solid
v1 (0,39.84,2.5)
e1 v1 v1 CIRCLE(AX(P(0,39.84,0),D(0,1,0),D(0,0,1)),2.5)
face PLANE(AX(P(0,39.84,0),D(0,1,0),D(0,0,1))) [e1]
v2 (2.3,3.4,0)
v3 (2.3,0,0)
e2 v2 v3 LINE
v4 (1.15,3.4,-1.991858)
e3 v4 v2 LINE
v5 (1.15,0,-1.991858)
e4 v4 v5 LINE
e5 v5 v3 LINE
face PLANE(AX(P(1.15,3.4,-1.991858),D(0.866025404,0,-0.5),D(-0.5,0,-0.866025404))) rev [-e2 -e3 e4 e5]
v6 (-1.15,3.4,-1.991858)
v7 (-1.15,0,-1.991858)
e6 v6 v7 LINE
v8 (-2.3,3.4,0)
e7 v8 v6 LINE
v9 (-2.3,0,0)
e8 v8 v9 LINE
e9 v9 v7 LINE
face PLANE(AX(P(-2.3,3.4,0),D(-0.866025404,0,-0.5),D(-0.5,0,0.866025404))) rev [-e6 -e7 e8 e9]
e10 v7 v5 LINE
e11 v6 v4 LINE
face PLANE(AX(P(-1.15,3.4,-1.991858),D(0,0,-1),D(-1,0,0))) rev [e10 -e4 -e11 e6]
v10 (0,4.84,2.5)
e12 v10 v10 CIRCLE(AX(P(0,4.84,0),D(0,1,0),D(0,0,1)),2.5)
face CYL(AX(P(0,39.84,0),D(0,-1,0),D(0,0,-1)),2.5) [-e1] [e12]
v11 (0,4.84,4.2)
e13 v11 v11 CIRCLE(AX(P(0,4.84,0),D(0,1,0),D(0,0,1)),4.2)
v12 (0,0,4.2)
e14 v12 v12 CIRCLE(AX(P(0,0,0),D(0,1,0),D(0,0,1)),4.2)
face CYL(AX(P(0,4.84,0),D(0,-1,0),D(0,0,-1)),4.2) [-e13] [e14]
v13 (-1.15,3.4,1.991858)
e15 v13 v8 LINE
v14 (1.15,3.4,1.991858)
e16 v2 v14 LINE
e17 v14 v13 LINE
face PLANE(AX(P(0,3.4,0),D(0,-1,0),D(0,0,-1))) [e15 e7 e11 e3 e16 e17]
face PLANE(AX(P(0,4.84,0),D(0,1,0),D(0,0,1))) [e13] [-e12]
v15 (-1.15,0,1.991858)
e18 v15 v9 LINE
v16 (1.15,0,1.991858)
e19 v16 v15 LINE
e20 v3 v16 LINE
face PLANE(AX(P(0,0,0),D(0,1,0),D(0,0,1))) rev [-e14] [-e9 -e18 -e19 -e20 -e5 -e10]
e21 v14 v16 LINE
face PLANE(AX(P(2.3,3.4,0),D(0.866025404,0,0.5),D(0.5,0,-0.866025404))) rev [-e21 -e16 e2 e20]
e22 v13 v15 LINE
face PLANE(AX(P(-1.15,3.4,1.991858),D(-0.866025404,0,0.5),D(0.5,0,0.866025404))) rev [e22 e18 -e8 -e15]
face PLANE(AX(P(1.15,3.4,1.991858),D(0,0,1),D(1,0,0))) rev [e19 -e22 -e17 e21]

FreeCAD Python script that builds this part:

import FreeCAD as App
import Part
import Sketcher
from FreeCAD import Vector
Q = App.Units.Quantity

doc = App.newDocument("Part")
body = doc.addObject("PartDesign::Body", "Body")

# Sketch on XZ plane
sketch1 = body.newObject("Sketcher::SketchObject", "Sketch")
sketch1.AttachmentSupport = (doc.getObject("XZ_Plane"), [""])
sketch1.MapMode = "FlatFace"
sketch1.addGeometry(Part.Circle(Vector(0, 0, 0), Vector(0, 0, 1), 4.2), False)
sketch1.addConstraint([
    Sketcher.Constraint("Coincident", 0, 3, -1, 1),
    Sketcher.Constraint("Diameter", 0, 8.4),
])
pad1 = body.newObject("PartDesign::Pad", "Pad")
pad1.Profile = sketch1
pad1.Length = 4.84
pad1.Reversed = True

# Sketch on XZ plane
sketch2 = body.newObject("Sketcher::SketchObject", "Sketch001")
sketch2.AttachmentSupport = (doc.getObject("XZ_Plane"), [""])
sketch2.MapMode = "FlatFace"
sketch2.AttachmentOffset = App.Placement(Vector(0, 0, -4.84), App.Rotation())
sketch2.addGeometry(Part.Circle(Vector(0, 0, 0), Vector(0, 0, 1), 2.5), False)
sketch2.addConstraint([
    Sketcher.Constraint("Coincident", 0, 3, -1, 1),
    Sketcher.Constraint("Diameter", 0, 5.0),
])
pad2 = body.newObject("PartDesign::Pad", "Pad001")
pad2.Profile = sketch2
pad2.Length = 35
pad2.Reversed = True

# Sketch on XZ plane
sketch3 = body.newObject("Sketcher::SketchObject", "Sketch002")
sketch3.AttachmentSupport = (doc.getObject("XZ_Plane"), [""])
sketch3.MapMode = "FlatFace"
sketch3.addGeometry([
    Part.LineSegment(Vector(2.3, 0, 0), Vector(1.15, 1.991858, 0)),  # 0
    Part.LineSegment(Vector(1.15, 1.991858, 0), Vector(-1.15, 1.991858, 0)),  # 1
    Part.LineSegment(Vector(-1.15, 1.991858, 0), Vector(-2.3, 0, 0)),  # 2
    Part.LineSegment(Vector(-2.3, 0, 0), Vector(-1.15, -1.991858, 0)),  # 3
    Part.LineSegment(Vector(-1.15, -1.991858, 0), Vector(1.15, -1.991858, 0)),  # 4
    Part.LineSegment(Vector(1.15, -1.991858, 0), Vector(2.3, 0, 0)),  # 5
], False)
sketch3.addConstraint([
    Sketcher.Constraint("Coincident", 0, 2, 1, 1),
    Sketcher.Constraint("Coincident", 1, 2, 2, 1),
    Sketcher.Constraint("Coincident", 2, 2, 3, 1),
    Sketcher.Constraint("Coincident", 3, 2, 4, 1),
    Sketcher.Constraint("Coincident", 4, 2, 5, 1),
    Sketcher.Constraint("Coincident", 5, 2, 0, 1),
    Sketcher.Constraint("Horizontal", 1),
    Sketcher.Constraint("Horizontal", 4),
    Sketcher.Constraint("Symmetric", 0, 2, 3, 2, -1, 1),
    Sketcher.Constraint("Symmetric", 2, 2, 5, 2, -1, 1),
    Sketcher.Constraint("PointOnObject", 2, 2, -1),
    Sketcher.Constraint("Parallel", 2, 5),
    Sketcher.Constraint("Vertical", 1, 2, 3, 2),
    Sketcher.Constraint("Angle", 0, Q("120 deg")),
    Sketcher.Constraint("DistanceX", 1, 2, 1, 1, 2.3),
    Sketcher.Constraint("Distance", 0, 2.3),
])
pocket1 = body.newObject("PartDesign::Pocket", "Pocket")
pocket1.Profile = sketch3
pocket1.Length = 3.4

doc.recompute()
